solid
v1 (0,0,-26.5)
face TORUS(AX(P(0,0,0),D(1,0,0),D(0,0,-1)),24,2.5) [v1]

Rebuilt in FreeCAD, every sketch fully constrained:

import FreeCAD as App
import Part
import Sketcher
Q = App.Units.Quantity

doc = App.newDocument("Part")
params = doc.addObject("Spreadsheet::Sheet", "Params")
for row, (alias, value) in enumerate([
    ("sketch1_diameter", "5 mm"),
    ("revolution_angle", "360 deg"),
], start=1):
    params.set(f"A{row}", alias)
    params.set(f"B{row}", "=" + value)
    params.setAlias(f"B{row}", alias)

body = doc.addObject("PartDesign::Body", "Body")

# Sketch on XY plane
sketch1 = body.newObject("Sketcher::SketchObject", "Sketch")
sketch1.AttachmentSupport = (doc.getObject("XY_Plane"), [""])
sketch1.MapMode = "FlatFace"
sketch1.addGeometry(Part.Circle(App.Vector(0, 24, 0), App.Vector(0, 0, 1), 2.5), False)
sketch1.addConstraint([
    Sketcher.Constraint("PointOnObject", 0, 3, -2),
    Sketcher.Constraint("Diameter", 0, Q("5 mm")),
    Sketcher.Constraint("DistanceY", -1, 1, 0, 3, Q("24 mm")),
])
sketch1.setExpression("Constraints[1]", "Params.sketch1_diameter")
revolution = body.newObject("PartDesign::Revolution", "Revolution")
revolution.Profile = sketch1
revolution.ReferenceAxis = (sketch1, ["H_Axis"])
revolution.setExpression("Angle", "Params.revolution_angle")

doc.recompute()
